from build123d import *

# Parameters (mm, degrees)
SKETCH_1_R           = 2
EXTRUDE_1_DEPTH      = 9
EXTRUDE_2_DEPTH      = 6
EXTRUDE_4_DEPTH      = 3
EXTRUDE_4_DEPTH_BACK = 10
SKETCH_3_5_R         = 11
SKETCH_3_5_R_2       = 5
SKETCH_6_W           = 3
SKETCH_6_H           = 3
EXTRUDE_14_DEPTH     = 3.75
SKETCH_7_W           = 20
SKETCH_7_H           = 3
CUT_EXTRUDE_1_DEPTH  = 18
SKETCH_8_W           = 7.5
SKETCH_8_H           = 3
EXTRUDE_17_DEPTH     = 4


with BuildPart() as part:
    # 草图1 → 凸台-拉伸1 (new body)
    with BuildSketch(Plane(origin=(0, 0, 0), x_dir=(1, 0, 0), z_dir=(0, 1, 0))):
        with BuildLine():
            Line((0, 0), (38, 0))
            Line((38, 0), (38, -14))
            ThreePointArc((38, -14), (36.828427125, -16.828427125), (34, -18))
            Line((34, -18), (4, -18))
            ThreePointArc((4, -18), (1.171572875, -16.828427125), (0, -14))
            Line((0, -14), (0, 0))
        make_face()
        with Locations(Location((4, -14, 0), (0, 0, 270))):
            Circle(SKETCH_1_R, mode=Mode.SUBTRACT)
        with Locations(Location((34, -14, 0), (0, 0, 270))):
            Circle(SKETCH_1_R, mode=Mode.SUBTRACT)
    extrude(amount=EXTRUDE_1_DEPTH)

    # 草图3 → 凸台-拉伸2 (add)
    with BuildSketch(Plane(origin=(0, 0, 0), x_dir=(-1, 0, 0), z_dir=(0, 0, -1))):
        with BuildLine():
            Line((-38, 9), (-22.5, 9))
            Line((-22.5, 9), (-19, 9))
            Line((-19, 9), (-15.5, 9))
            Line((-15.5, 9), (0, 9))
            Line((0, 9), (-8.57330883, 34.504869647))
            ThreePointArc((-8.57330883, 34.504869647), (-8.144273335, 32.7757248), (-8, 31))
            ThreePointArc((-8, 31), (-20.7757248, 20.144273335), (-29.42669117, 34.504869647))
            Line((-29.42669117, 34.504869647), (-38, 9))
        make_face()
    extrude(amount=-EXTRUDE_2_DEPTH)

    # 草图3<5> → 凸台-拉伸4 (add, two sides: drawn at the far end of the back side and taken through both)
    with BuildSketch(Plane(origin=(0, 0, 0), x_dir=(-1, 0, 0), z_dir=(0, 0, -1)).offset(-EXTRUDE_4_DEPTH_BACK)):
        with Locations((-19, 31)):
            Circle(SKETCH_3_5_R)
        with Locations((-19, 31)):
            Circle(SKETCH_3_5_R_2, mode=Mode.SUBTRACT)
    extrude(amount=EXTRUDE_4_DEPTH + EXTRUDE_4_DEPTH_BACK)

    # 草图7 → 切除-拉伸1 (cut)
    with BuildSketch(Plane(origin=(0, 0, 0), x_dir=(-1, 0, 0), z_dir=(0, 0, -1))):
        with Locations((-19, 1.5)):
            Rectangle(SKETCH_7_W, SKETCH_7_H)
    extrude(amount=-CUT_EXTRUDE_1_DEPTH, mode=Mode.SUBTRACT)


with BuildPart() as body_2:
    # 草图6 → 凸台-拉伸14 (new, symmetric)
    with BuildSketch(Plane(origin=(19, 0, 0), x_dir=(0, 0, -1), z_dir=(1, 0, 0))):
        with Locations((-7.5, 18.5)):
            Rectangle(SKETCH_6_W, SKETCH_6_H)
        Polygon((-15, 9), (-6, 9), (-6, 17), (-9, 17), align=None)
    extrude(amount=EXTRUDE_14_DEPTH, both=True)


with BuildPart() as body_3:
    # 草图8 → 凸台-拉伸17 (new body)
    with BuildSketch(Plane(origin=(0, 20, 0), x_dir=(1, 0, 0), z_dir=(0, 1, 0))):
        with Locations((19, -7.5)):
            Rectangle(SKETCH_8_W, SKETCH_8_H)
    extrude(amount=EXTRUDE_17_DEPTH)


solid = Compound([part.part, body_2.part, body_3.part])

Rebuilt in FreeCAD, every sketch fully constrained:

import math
import FreeCAD as App
import Part
import Sketcher
Q = App.Units.Quantity

doc = App.newDocument("Part")
body = doc.addObject("PartDesign::Body", "Body")

sketch1 = doc.addObject("Sketcher::SketchObject", "Sketch")
body.addObject(sketch1)
sketch1.AttachmentSupport = (doc.XZ_Plane, [""])
sketch1.MapMode = "FlatFace"
sketch1.addGeometry([
    Part.LineSegment(App.Vector(38, 0, 0), App.Vector(0, 0, 0)),
    Part.LineSegment(App.Vector(0, 0, 0), App.Vector(0, 14, 0)),
    Part.ArcOfCircle(Part.Circle(App.Vector(4, 14, 0), App.Vector(0, 0, 1), 4), math.radians(90), math.radians(180)),
    Part.LineSegment(App.Vector(4, 18, 0), App.Vector(34, 18, 0)),
    Part.ArcOfCircle(Part.Circle(App.Vector(34, 14, 0), App.Vector(0, 0, 1), 4), math.radians(0), math.radians(90)),
    Part.LineSegment(App.Vector(38, 14, 0), App.Vector(38, 0, 0)),
    Part.Circle(App.Vector(34, 14, 0), App.Vector(0, 0, 1), 2),
    Part.Circle(App.Vector(4, 14, 0), App.Vector(0, 0, 1), 2),
], False)
sketch1.addConstraint([
    Sketcher.Constraint("Coincident", 0, 2, 1, 1),
    Sketcher.Constraint("Tangent", 1, 2, 2, 2),
    Sketcher.Constraint("Tangent", 2, 1, 3, 1),
    Sketcher.Constraint("Tangent", 3, 2, 4, 2),
    Sketcher.Constraint("Tangent", 4, 1, 5, 1),
    Sketcher.Constraint("Coincident", 5, 2, 0, 1),
    Sketcher.Constraint("Horizontal", 0),
    Sketcher.Constraint("Vertical", 1),
    Sketcher.Constraint("Horizontal", 3),
    Sketcher.Constraint("Vertical", 5),
    Sketcher.Constraint("Coincident", 0, 2, -1, 1),
    Sketcher.Constraint("Coincident", 6, 3, 4, 3),
    Sketcher.Constraint("Coincident", 7, 3, 2, 3),
    Sketcher.Constraint("Equal", 2, 4),
    Sketcher.Constraint("Equal", 6, 7),
    Sketcher.Constraint("Diameter", 6, Q("4 mm")),
    Sketcher.Constraint("Radius", 2, Q("4 mm")),
    Sketcher.Constraint("DistanceX", 0, 2, 0, 1, Q("38 mm")),
    Sketcher.Constraint("DistanceY", 1, 1, 1, 2, Q("14 mm")),
])
pad1 = doc.addObject("PartDesign::Pad", "Pad")
body.addObject(pad1)
pad1.Profile = sketch1
pad1.Length = 9
pad1.Reversed = True

sketch2 = doc.addObject("Sketcher::SketchObject", "Sketch001")
body.addObject(sketch2)
sketch2.AttachmentSupport = (doc.XY_Plane, [""])
sketch2.MapMode = "FlatFace"
sketch2.addGeometry([
    Part.LineSegment(App.Vector(38, 9, 0), App.Vector(0, 9, 0)),
    Part.LineSegment(App.Vector(0, 9, 0), App.Vector(8.6, 34.5, 0)),
    Part.ArcOfCircle(Part.Circle(App.Vector(19, 31, 0), App.Vector(0, 0, 1), 11), math.radians(161.42), math.radians(180)),
    Part.ArcOfCircle(Part.Circle(App.Vector(19, 31, 0), App.Vector(0, 0, 1), 11), math.radians(180), math.radians(379)),
    Part.LineSegment(App.Vector(29.4, 34.5, 0), App.Vector(38, 9, 0)),
], False)
sketch2.addConstraint([
    Sketcher.Constraint("Coincident", 0, 2, 1, 1),
    Sketcher.Constraint("Tangent", 1, 2, 2, 1),
    Sketcher.Constraint("Tangent", 2, 2, 3, 1),
    Sketcher.Constraint("Tangent", 3, 2, 4, 1),
    Sketcher.Constraint("Coincident", 4, 2, 0, 1),
    Sketcher.Constraint("Horizontal", 0),
    Sketcher.Constraint("Equal", 2, 3),
    Sketcher.Constraint("PointOnObject", 0, 2, -2),
    Sketcher.Constraint("Horizontal", 3, 3, 2, 2),
    Sketcher.Constraint("Horizontal", 1, 2, 3, 2),
    Sketcher.Constraint("Radius", 2, Q("11 mm")),
    Sketcher.Constraint("DistanceX", 0, 2, 0, 1, Q("38 mm")),
    Sketcher.Constraint("DistanceY", -1, 1, 2, 3, Q("31 mm")),
    Sketcher.Constraint("DistanceY", -1, 1, 0, 2, Q("9 mm")),
])
pad2 = doc.addObject("PartDesign::Pad", "Pad001")
body.addObject(pad2)
pad2.Profile = sketch2
pad2.Length = 6

sketch3 = doc.addObject("Sketcher::SketchObject", "Sketch002")
body.addObject(sketch3)
sketch3.AttachmentSupport = (doc.XY_Plane, [""])
sketch3.MapMode = "FlatFace"
sketch3.addGeometry([
    Part.Circle(App.Vector(19, 31, 0), App.Vector(0, 0, 1), 11),
    Part.Circle(App.Vector(19, 31, 0), App.Vector(0, 0, 1), 5),
], False)
sketch3.addConstraint([
    Sketcher.Constraint("Coincident", 1, 3, 0, 3),
    Sketcher.Constraint("Diameter", 0, Q("22 mm")),
    Sketcher.Constraint("Diameter", 1, Q("10 mm")),
    Sketcher.Constraint("DistanceX", -1, 1, 0, 3, Q("19 mm")),
    Sketcher.Constraint("DistanceY", -1, 1, 0, 3, Q("31 mm")),
])
pad3 = doc.addObject("PartDesign::Pad", "Pad002")
body.addObject(pad3)
pad3.Profile = sketch3
pad3.Type = "TwoLengths"
pad3.Length = 3
pad3.Length2 = 10
pad3.Reversed = True

sketch4 = doc.addObject("Sketcher::SketchObject", "Sketch003")
body.addObject(sketch4)
sketch4.AttachmentSupport = (doc.XY_Plane, [""])
sketch4.MapMode = "FlatFace"
sketch4.addGeometry([
    Part.LineSegment(App.Vector(29, 3, 0), App.Vector(29, 0, 0)),
    Part.LineSegment(App.Vector(29, 0, 0), App.Vector(9, 0, 0)),
    Part.LineSegment(App.Vector(9, 0, 0), App.Vector(9, 3, 0)),
    Part.LineSegment(App.Vector(9, 3, 0), App.Vector(29, 3, 0)),
], False)
sketch4.addConstraint([
    Sketcher.Constraint("Coincident", 0, 2, 1, 1),
    Sketcher.Constraint("Coincident", 1, 2, 2, 1),
    Sketcher.Constraint("Coincident", 2, 2, 3, 1),
    Sketcher.Constraint("Coincident", 3, 2, 0, 1),
    Sketcher.Constraint("Vertical", 0),
    Sketcher.Constraint("Horizontal", 1),
    Sketcher.Constraint("Vertical", 2),
    Sketcher.Constraint("Horizontal", 3),
    Sketcher.Constraint("PointOnObject", 0, 2, -1),
    Sketcher.Constraint("DistanceX", 1, 2, 1, 1, Q("20 mm")),
    Sketcher.Constraint("DistanceY", 0, 2, 0, 1, Q("3 mm")),
    Sketcher.Constraint("DistanceX", -1, 1, 0, 2, Q("29 mm")),
])
pocket1 = doc.addObject("PartDesign::Pocket", "Pocket")
body.addObject(pocket1)
pocket1.Profile = sketch4
pocket1.Length = 18
pocket1.Reversed = True
body2 = doc.addObject("PartDesign::Body", "Body001")

sketch5 = doc.addObject("Sketcher::SketchObject", "Sketch004")
body2.addObject(sketch5)
sketch5.AttachmentSupport = (doc.getObject("YZ_Plane001"), [""])
sketch5.MapMode = "FlatFace"
sketch5.AttachmentOffset = App.Placement(App.Vector(0, 0, 19), App.Rotation())
sketch5.addGeometry([
    Part.LineSegment(App.Vector(20, 9, 0), App.Vector(17, 9, 0)),
    Part.LineSegment(App.Vector(17, 9, 0), App.Vector(9, 15, 0)),
    Part.LineSegment(App.Vector(9, 15, 0), App.Vector(9, 6, 0)),
    Part.LineSegment(App.Vector(9, 6, 0), App.Vector(20, 6, 0)),
    Part.LineSegment(App.Vector(20, 6, 0), App.Vector(20, 9, 0)),
], False)
sketch5.addConstraint([
    Sketcher.Constraint("Coincident", 0, 2, 1, 1),
    Sketcher.Constraint("Coincident", 1, 2, 2, 1),
    Sketcher.Constraint("Coincident", 2, 2, 3, 1),
    Sketcher.Constraint("Coincident", 3, 2, 4, 1),
    Sketcher.Constraint("Coincident", 4, 2, 0, 1),
    Sketcher.Constraint("Horizontal", 0),
    Sketcher.Constraint("Vertical", 2),
    Sketcher.Constraint("Horizontal", 3),
    Sketcher.Constraint("Vertical", 4),
    Sketcher.Constraint("Equal", 0, 4),
    Sketcher.Constraint("DistanceX", 0, 2, 0, 1, Q("3 mm")),
    Sketcher.Constraint("DistanceX", 3, 1, 3, 2, Q("11 mm")),
    Sketcher.Constraint("DistanceY", 2, 2, 2, 1, Q("9 mm")),
    Sketcher.Constraint("DistanceX", -1, 1, 0, 2, Q("17 mm")),
    Sketcher.Constraint("DistanceY", -1, 1, 0, 2, Q("9 mm")),
])
pad4 = doc.addObject("PartDesign::Pad", "Pad003")
body2.addObject(pad4)
pad4.Profile = sketch5
pad4.Length = 7.5
pad4.Midplane = True
body3 = doc.addObject("PartDesign::Body", "Body002")

sketch6 = doc.addObject("Sketcher::SketchObject", "Sketch005")
body3.addObject(sketch6)
sketch6.AttachmentSupport = (doc.getObject("XZ_Plane002"), [""])
sketch6.MapMode = "FlatFace"
sketch6.AttachmentOffset = App.Placement(App.Vector(0, 0, -20), App.Rotation())
sketch6.addGeometry([
    Part.LineSegment(App.Vector(15.2, 6, 0), App.Vector(15.2, 9, 0)),
    Part.LineSegment(App.Vector(15.2, 9, 0), App.Vector(22.8, 9, 0)),
    Part.LineSegment(App.Vector(22.8, 9, 0), App.Vector(22.8, 6, 0)),
    Part.LineSegment(App.Vector(22.8, 6, 0), App.Vector(15.2, 6, 0)),
], False)
sketch6.addConstraint([
    Sketcher.Constraint("Coincident", 0, 2, 1, 1),
    Sketcher.Constraint("Coincident", 1, 2, 2, 1),
    Sketcher.Constraint("Coincident", 2, 2, 3, 1),
    Sketcher.Constraint("Coincident", 3, 2, 0, 1),
    Sketcher.Constraint("Vertical", 0),
    Sketcher.Constraint("Horizontal", 1),
    Sketcher.Constraint("Vertical", 2),
    Sketcher.Constraint("Horizontal", 3),
    Sketcher.Constraint("DistanceY", 0, 1, 0, 2, Q("3 mm")),
    Sketcher.Constraint("DistanceX", 1, 1, 1, 2, Q("7.5 mm")),
    Sketcher.Constraint("DistanceY", -1, 1, 0, 2, Q("9 mm")),
    Sketcher.Constraint("DistanceX", -1, 1, 0, 2, Q("15.25 mm")),
])
pad5 = doc.addObject("PartDesign::Pad", "Pad004")
body3.addObject(pad5)
pad5.Profile = sketch6
pad5.Length = 4
pad5.Reversed = True

doc.recompute()
